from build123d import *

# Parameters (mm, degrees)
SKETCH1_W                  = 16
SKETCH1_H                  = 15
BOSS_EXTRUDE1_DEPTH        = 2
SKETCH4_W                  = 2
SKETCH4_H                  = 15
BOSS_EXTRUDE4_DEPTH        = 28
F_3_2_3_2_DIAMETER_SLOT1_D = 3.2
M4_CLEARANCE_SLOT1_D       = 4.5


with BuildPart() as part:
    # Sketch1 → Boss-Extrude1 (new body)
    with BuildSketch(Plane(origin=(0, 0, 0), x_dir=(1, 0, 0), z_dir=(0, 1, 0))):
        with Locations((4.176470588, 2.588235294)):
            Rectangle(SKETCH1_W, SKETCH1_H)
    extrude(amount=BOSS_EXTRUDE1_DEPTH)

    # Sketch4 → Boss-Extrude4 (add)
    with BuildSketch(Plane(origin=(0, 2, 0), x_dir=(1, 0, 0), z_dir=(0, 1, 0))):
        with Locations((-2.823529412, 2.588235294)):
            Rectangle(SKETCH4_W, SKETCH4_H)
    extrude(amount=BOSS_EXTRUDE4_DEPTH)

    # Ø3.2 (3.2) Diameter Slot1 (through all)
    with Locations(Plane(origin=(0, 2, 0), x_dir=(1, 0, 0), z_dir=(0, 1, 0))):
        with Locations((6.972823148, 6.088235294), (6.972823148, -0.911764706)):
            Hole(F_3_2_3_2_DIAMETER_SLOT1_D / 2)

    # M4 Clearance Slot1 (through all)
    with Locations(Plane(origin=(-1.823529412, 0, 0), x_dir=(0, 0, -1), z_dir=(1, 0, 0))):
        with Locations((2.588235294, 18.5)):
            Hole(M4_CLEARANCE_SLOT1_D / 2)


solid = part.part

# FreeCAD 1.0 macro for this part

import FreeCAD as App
import Part
import Sketcher

V = App.Vector
Q = App.Units.Quantity


def add_polygon(sketch, points):
    """Adds a closed chain of lines whose ends are joined by coincident constraints."""
    first, n = sketch.GeometryCount, len(points)
    for a, b in zip(points, points[1:] + points[:1]):
        sketch.addGeometry(Part.LineSegment(App.Vector(*a, 0), App.Vector(*b, 0)), False)
    for i in range(n):
        sketch.addConstraint(Sketcher.Constraint("Coincident", first + i, 2, first + (i + 1) % n, 1))

doc = App.newDocument("Part")
body = doc.addObject("PartDesign::Body", "Body")

# Sketch on XZ plane
sketch1 = body.newObject("Sketcher::SketchObject", "Sketch")
sketch1.AttachmentSupport = (doc.getObject("XZ_Plane"), [""])
sketch1.MapMode = "FlatFace"
add_polygon(sketch1, [(-4, -10), (-4, 5), (12, 5), (12, -10)])  # lines 0-3
sketch1.addConstraint(Sketcher.Constraint("Vertical", 0))
sketch1.addConstraint(Sketcher.Constraint("Horizontal", 1))
sketch1.addConstraint(Sketcher.Constraint("Vertical", 2))
sketch1.addConstraint(Sketcher.Constraint("Horizontal", 3))
sketch1.addConstraint(Sketcher.Constraint("DistanceX", 1, 1, 1, 2, Q("16 mm")))
sketch1.addConstraint(Sketcher.Constraint("DistanceY", 0, 1, 0, 2, Q("15 mm")))
sketch1.addConstraint(Sketcher.Constraint("DistanceX", 0, 2, -1, 1, Q("3.823529 mm")))
sketch1.addConstraint(Sketcher.Constraint("DistanceY", -1, 1, 0, 2, Q("4.911765 mm")))
pad1 = body.newObject("PartDesign::Pad", "Pad")
pad1.Profile = sketch1
pad1.Length = 2
pad1.Reversed = True

# Sketch on XZ plane
sketch2 = body.newObject("Sketcher::SketchObject", "Sketch001")
sketch2.AttachmentSupport = (doc.getObject("XZ_Plane"), [""])
sketch2.MapMode = "FlatFace"
sketch2.AttachmentOffset = App.Placement(V(0, 0, -2), App.Rotation())
add_polygon(sketch2, [(-3.8, -10.1), (-3.8, 4.9), (-1.8, 4.9), (-1.8, -10.1)])  # lines 0-3
sketch2.addConstraint(Sketcher.Constraint("Vertical", 0))
sketch2.addConstraint(Sketcher.Constraint("Horizontal", 1))
sketch2.addConstraint(Sketcher.Constraint("Vertical", 2))
sketch2.addConstraint(Sketcher.Constraint("Horizontal", 3))
sketch2.addConstraint(Sketcher.Constraint("DistanceX", 1, 1, 1, 2, Q("2 mm")))
sketch2.addConstraint(Sketcher.Constraint("DistanceY", 0, 1, 0, 2, Q("15 mm")))
sketch2.addConstraint(Sketcher.Constraint("DistanceX", 0, 2, -1, 1, Q("3.823529 mm")))
sketch2.addConstraint(Sketcher.Constraint("DistanceY", -1, 1, 0, 2, Q("4.911765 mm")))
pad2 = body.newObject("PartDesign::Pad", "Pad001")
pad2.Profile = sketch2
pad2.Length = 28
pad2.Reversed = True

# Sketch on XZ plane
sketch3 = body.newObject("Sketcher::SketchObject", "Sketch002")
sketch3.AttachmentSupport = (doc.getObject("XZ_Plane"), [""])
sketch3.MapMode = "FlatFace"
sketch3.AttachmentOffset = App.Placement(V(0, 0, -2), App.Rotation())
sketch3.addGeometry(Part.Circle(V(7, -6.1, 0), V(0, 0, 1), 1.6), False)
sketch3.addGeometry(Part.Circle(V(7, 0.9, 0), V(0, 0, 1), 1.6), False)
sketch3.addConstraint(Sketcher.Constraint("Equal", 0, 1))
sketch3.addConstraint(Sketcher.Constraint("Vertical", 0, 3, 1, 3))
sketch3.addConstraint(Sketcher.Constraint("Diameter", 0, Q("3.2 mm")))
sketch3.addConstraint(Sketcher.Constraint("DistanceY", 0, 3, 1, 3, Q("7 mm")))
sketch3.addConstraint(Sketcher.Constraint("DistanceX", -1, 1, 0, 3, Q("6.972823 mm")))
sketch3.addConstraint(Sketcher.Constraint("DistanceY", 0, 3, -1, 1, Q("6.088235 mm")))
doc.recompute()
hole = body.newObject("PartDesign::Hole", "Hole")
hole.Profile = sketch3
hole.ThreadType = "None"
hole.Diameter = 3.2
hole.DepthType = "ThroughAll"
hole.Reversed = True

# Sketch on YZ plane
sketch4 = body.newObject("Sketcher::SketchObject", "Sketch003")
sketch4.AttachmentSupport = (doc.getObject("YZ_Plane"), [""])
sketch4.MapMode = "FlatFace"
sketch4.AttachmentOffset = App.Placement(V(0, 0, -1.823529), App.Rotation())
sketch4.addGeometry(Part.Circle(V(18.5, -2.6, 0), V(0, 0, 1), 2.2), False)
sketch4.addConstraint(Sketcher.Constraint("Diameter", 0, Q("4.5 mm")))
sketch4.addConstraint(Sketcher.Constraint("DistanceX", -1, 1, 0, 3, Q("18.5 mm")))
sketch4.addConstraint(Sketcher.Constraint("DistanceY", 0, 3, -1, 1, Q("2.588235 mm")))
doc.recompute()
hole2 = body.newObject("PartDesign::Hole", "Hole001")
hole2.Profile = sketch4
hole2.ThreadType = "None"
hole2.Diameter = 4.5
hole2.DepthType = "ThroughAll"

doc.recompute()
